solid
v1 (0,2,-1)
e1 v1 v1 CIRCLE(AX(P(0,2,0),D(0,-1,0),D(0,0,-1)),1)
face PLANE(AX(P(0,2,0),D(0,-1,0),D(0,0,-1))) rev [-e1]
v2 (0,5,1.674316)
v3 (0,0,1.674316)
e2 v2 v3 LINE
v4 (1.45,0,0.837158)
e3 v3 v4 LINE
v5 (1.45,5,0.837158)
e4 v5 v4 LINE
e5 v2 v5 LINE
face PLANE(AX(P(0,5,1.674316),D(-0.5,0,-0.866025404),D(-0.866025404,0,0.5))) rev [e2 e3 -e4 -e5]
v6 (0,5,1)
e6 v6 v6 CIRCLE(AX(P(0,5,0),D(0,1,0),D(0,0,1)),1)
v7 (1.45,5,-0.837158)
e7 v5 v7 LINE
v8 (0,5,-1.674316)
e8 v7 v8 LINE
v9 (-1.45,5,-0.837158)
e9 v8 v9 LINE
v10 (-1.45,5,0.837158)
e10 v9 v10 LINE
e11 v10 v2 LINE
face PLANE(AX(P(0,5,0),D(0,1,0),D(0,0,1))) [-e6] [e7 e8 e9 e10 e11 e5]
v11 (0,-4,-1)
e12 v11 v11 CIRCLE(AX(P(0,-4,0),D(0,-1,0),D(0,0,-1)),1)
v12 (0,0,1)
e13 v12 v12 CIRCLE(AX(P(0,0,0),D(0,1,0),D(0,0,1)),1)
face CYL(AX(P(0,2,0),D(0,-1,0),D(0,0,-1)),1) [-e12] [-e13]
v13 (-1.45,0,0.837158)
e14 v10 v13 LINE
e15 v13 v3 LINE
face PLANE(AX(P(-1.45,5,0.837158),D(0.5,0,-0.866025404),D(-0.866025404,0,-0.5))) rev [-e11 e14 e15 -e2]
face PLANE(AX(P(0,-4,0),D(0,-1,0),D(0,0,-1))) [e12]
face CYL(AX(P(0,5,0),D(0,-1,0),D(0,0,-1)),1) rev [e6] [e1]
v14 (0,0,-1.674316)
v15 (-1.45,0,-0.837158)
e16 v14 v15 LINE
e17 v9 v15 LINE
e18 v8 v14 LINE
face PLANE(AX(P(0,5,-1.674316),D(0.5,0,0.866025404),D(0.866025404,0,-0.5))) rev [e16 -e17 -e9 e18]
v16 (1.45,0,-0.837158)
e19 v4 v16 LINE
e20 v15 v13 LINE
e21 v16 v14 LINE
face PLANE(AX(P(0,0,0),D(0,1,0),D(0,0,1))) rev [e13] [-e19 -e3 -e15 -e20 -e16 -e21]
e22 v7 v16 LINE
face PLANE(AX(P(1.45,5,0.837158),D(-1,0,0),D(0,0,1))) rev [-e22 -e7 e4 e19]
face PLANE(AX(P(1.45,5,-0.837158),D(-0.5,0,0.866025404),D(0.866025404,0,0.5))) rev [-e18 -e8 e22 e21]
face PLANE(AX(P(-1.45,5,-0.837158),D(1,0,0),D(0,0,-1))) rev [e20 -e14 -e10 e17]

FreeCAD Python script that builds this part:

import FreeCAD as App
import Part
import Sketcher
from FreeCAD import Vector
Q = App.Units.Quantity

doc = App.newDocument("Part")
body = doc.addObject("PartDesign::Body", "Body")

# Sketch on XZ plane
sketch1 = body.newObject("Sketcher::SketchObject", "Sketch")
sketch1.AttachmentSupport = (doc.getObject("XZ_Plane"), [""])
sketch1.MapMode = "FlatFace"
sketch1.addGeometry([
    Part.LineSegment(Vector(0, -1.674316, 0), Vector(-1.45, -0.837158, 0)),  # 0
    Part.LineSegment(Vector(-1.45, -0.837158, 0), Vector(-1.45, 0.837158, 0)),  # 1
    Part.LineSegment(Vector(-1.45, 0.837158, 0), Vector(0, 1.674316, 0)),  # 2
    Part.LineSegment(Vector(0, 1.674316, 0), Vector(1.45, 0.837158, 0)),  # 3
    Part.LineSegment(Vector(1.45, 0.837158, 0), Vector(1.45, -0.837158, 0)),  # 4
    Part.LineSegment(Vector(1.45, -0.837158, 0), Vector(0, -1.674316, 0)),  # 5
    Part.Circle(Vector(0, 0, 0), Vector(0, 0, 1), 1),  # 6
], False)
sketch1.addConstraint([
    Sketcher.Constraint("Coincident", 0, 2, 1, 1),
    Sketcher.Constraint("Coincident", 1, 2, 2, 1),
    Sketcher.Constraint("Coincident", 2, 2, 3, 1),
    Sketcher.Constraint("Coincident", 3, 2, 4, 1),
    Sketcher.Constraint("Coincident", 4, 2, 5, 1),
    Sketcher.Constraint("Coincident", 5, 2, 0, 1),
    Sketcher.Constraint("Vertical", 1),
    Sketcher.Constraint("Vertical", 4),
    Sketcher.Constraint("Coincident", 6, 3, -1, 1),
    Sketcher.Constraint("Symmetric", 0, 2, 3, 2, -1, 1),
    Sketcher.Constraint("Symmetric", 2, 2, 5, 2, -1, 1),
    Sketcher.Constraint("PointOnObject", 2, 2, -2),
    Sketcher.Constraint("Parallel", 2, 5),
    Sketcher.Constraint("Horizontal", 1, 2, 3, 2),
    Sketcher.Constraint("Diameter", 6, 2.0),
    Sketcher.Constraint("Angle", 0, Q("150 deg")),
    Sketcher.Constraint("DistanceX", 1, 2, 3, 2, 2.9),
    Sketcher.Constraint("DistanceY", 1, 1, 1, 2, 1.674316),
])
pad1 = body.newObject("PartDesign::Pad", "Pad")
pad1.Profile = sketch1
pad1.Length = 5
pad1.Reversed = True

# Sketch on XZ plane
sketch2 = body.newObject("Sketcher::SketchObject", "Sketch001")
sketch2.AttachmentSupport = (doc.getObject("XZ_Plane"), [""])
sketch2.MapMode = "FlatFace"
sketch2.addGeometry(Part.Circle(Vector(0, 0, 0), Vector(0, 0, 1), 1), False)
sketch2.addConstraint([
    Sketcher.Constraint("Coincident", 0, 3, -1, 1),
    Sketcher.Constraint("Diameter", 0, 2.0),
])
pad2 = body.newObject("PartDesign::Pad", "Pad001")
pad2.Profile = sketch2
pad2.Type = "TwoLengths"
pad2.Length = 4
pad2.Length2 = 2

doc.recompute()
